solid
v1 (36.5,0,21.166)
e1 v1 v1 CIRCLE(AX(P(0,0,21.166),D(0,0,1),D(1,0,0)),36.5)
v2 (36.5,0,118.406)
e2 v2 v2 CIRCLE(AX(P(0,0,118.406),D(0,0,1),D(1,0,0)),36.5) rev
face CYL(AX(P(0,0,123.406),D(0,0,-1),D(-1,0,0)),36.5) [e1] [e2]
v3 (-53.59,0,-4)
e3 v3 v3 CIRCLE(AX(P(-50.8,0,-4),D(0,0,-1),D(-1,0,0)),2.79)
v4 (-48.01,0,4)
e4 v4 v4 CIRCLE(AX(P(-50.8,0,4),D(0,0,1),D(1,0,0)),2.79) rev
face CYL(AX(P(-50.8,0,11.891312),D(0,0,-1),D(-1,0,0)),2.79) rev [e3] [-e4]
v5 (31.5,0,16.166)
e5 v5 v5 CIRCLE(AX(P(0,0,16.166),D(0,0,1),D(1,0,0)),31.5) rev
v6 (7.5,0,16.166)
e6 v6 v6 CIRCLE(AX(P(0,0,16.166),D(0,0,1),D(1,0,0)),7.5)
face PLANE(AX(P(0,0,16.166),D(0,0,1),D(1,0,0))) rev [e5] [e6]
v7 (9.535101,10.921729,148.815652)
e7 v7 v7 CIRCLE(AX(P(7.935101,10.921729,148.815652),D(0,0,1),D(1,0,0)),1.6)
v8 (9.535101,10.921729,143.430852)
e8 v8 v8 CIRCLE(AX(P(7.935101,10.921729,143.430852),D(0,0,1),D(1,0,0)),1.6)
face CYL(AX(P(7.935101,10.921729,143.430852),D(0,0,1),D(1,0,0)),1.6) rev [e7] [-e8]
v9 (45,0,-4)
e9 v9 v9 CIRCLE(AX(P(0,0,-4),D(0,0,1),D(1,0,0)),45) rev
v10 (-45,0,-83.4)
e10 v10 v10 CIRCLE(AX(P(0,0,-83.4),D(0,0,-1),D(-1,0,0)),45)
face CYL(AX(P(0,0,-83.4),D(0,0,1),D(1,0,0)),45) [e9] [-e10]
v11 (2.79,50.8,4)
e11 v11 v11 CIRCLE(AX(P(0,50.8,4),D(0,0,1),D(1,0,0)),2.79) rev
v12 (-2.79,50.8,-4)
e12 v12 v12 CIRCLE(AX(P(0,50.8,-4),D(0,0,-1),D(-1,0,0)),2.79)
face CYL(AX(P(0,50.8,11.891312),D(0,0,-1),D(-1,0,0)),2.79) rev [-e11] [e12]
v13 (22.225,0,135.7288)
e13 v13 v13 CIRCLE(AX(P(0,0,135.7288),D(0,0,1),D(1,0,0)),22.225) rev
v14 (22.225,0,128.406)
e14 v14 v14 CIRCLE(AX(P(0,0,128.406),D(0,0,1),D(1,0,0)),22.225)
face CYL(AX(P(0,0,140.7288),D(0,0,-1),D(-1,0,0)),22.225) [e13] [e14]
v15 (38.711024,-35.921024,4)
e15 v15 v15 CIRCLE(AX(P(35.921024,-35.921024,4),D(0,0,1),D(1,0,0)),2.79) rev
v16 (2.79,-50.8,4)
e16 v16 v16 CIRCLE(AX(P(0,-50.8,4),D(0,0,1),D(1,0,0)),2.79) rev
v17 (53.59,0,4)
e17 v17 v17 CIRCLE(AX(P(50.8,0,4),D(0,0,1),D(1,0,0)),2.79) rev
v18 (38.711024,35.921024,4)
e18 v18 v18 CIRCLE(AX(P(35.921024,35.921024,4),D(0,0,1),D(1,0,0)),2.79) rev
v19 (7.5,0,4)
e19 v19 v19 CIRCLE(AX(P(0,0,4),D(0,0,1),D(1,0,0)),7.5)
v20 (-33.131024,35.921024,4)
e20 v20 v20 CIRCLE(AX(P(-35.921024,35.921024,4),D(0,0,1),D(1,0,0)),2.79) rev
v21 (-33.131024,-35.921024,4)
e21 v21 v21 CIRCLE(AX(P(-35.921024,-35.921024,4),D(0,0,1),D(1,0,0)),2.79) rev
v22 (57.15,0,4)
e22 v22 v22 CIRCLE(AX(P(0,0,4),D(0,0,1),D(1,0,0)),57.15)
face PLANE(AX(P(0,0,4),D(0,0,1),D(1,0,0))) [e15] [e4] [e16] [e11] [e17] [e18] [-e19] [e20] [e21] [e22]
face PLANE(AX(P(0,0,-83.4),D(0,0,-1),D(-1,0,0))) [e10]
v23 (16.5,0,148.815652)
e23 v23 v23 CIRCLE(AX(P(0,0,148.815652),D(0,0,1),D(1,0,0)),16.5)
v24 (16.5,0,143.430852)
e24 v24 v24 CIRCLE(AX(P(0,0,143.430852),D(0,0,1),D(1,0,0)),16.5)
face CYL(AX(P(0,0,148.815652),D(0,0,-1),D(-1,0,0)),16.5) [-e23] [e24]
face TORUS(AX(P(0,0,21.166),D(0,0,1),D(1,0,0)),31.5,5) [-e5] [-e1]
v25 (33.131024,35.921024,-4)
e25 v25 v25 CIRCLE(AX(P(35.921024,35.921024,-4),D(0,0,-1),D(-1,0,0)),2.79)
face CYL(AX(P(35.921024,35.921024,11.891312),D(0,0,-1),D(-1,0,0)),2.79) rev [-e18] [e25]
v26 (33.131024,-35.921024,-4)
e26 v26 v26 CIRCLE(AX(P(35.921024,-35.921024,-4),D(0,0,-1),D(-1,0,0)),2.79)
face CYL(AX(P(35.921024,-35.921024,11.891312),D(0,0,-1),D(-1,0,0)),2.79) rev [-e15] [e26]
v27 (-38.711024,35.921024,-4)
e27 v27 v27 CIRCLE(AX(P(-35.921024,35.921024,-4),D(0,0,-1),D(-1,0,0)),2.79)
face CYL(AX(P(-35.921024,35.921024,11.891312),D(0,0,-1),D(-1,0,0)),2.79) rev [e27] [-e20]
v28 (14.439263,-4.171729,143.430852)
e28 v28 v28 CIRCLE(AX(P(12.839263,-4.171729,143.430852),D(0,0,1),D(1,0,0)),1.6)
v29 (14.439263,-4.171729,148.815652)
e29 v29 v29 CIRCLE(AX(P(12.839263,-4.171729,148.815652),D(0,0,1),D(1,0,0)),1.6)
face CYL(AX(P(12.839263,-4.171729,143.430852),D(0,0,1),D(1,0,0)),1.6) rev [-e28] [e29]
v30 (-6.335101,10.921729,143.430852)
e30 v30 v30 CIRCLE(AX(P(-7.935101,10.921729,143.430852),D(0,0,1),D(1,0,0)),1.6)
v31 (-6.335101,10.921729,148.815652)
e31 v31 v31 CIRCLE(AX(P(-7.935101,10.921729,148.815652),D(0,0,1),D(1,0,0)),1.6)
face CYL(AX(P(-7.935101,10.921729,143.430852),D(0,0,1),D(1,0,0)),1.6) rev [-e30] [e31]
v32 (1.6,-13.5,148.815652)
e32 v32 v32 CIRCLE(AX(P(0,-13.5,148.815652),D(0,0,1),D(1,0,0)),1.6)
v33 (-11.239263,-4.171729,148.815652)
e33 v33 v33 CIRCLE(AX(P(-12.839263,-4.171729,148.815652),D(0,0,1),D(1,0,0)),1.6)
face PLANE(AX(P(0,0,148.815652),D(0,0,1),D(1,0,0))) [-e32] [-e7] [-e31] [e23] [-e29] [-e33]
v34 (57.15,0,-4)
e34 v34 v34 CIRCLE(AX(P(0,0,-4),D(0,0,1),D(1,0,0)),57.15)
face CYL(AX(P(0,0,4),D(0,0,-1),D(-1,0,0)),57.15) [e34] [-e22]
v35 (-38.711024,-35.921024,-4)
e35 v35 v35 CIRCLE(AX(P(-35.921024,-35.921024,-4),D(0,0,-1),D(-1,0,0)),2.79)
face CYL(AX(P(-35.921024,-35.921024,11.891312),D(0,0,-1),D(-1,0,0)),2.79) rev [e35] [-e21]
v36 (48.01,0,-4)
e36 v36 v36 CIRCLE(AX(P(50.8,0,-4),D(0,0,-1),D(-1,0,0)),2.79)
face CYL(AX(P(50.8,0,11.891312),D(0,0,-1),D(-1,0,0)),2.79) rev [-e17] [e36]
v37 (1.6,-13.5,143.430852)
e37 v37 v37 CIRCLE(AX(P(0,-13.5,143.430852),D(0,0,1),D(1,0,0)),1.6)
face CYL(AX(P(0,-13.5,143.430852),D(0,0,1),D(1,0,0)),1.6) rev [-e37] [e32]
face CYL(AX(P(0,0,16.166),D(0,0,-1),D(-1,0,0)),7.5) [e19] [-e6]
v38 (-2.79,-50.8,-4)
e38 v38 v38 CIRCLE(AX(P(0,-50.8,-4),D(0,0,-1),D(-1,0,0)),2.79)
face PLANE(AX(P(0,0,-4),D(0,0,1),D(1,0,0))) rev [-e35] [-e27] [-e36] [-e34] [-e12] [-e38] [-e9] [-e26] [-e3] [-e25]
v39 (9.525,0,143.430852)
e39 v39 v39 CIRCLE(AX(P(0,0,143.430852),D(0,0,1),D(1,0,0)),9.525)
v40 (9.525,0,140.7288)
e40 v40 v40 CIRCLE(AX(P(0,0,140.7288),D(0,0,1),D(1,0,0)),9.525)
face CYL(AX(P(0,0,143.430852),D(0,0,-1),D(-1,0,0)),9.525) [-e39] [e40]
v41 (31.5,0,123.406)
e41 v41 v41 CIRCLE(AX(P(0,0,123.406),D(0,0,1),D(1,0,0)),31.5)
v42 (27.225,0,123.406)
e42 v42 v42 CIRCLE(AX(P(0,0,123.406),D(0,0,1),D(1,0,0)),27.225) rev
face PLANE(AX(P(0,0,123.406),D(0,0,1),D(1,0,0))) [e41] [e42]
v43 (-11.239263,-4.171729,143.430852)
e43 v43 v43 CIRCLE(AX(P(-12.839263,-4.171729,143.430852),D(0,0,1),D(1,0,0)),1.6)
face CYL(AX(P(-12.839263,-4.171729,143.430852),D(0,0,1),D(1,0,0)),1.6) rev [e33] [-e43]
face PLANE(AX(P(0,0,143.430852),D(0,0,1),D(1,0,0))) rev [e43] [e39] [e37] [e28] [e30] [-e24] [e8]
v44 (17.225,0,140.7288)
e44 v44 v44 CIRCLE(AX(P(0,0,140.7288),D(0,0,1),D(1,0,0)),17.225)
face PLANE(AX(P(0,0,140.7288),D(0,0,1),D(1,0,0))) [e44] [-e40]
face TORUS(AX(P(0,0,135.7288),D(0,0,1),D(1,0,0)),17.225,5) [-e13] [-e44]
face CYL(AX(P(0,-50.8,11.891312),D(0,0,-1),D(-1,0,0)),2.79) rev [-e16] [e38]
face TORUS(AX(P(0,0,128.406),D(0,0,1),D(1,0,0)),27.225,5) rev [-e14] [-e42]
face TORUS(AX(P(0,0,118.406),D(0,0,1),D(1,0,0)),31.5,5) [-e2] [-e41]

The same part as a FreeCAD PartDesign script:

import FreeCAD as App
import Part
import Sketcher
from FreeCAD import Vector
Q = App.Units.Quantity


def edges_at(feature, points):
    """Names of the edges that pass closest to the given points."""
    edges = feature.Shape.Edges
    near = lambda p: min(range(len(edges)), key=lambda i: edges[i].distToShape(Part.Vertex(*p))[0])
    return sorted({f"Edge{near(p) + 1}" for p in points})

doc = App.newDocument("Part")
body = doc.addObject("PartDesign::Body", "Body")

sketch1 = doc.addObject("Sketcher::SketchObject", "Sketch")
body.addObject(sketch1)
sketch1.AttachmentSupport = (doc.XY_Plane, [""])
sketch1.MapMode = "FlatFace"
sketch1.addGeometry(Part.Circle(Vector(0, 0, 0), Vector(0, 0, 1), 57.15), False)
sketch1.addConstraint([
    Sketcher.Constraint("Coincident", 0, 3, -1, 1),
    Sketcher.Constraint("Diameter", 0, Q("114.3 mm")),
])
pad1 = doc.addObject("PartDesign::Pad", "Pad")
body.addObject(pad1)
pad1.Profile = sketch1
pad1.Length = 8
pad1.Midplane = True

sketch2 = doc.addObject("Sketcher::SketchObject", "Sketch001")
body.addObject(sketch2)
sketch2.AttachmentSupport = (doc.XY_Plane, [""])
sketch2.MapMode = "FlatFace"
sketch2.AttachmentOffset = App.Placement(Vector(0, 0, 4), App.Rotation())
sketch2.addGeometry(Part.Circle(Vector(0, 0, 0), Vector(0, 0, 1), 7.5), False)
sketch2.addConstraint([
    Sketcher.Constraint("Coincident", 0, 3, -1, 1),
    Sketcher.Constraint("Diameter", 0, Q("15 mm")),
])
pad2 = doc.addObject("PartDesign::Pad", "Pad001")
body.addObject(pad2)
pad2.Profile = sketch2
pad2.Length = 12.166

sketch3 = doc.addObject("Sketcher::SketchObject", "Sketch002")
body.addObject(sketch3)
sketch3.AttachmentSupport = (doc.XY_Plane, [""])
sketch3.MapMode = "FlatFace"
sketch3.AttachmentOffset = App.Placement(Vector(0, 0, 16.166), App.Rotation())
sketch3.addGeometry(Part.Circle(Vector(0, 0, 0), Vector(0, 0, 1), 36.5), False)
sketch3.addConstraint([
    Sketcher.Constraint("Coincident", 0, 3, -1, 1),
    Sketcher.Constraint("Diameter", 0, Q("73 mm")),
])
pad3 = doc.addObject("PartDesign::Pad", "Pad002")
body.addObject(pad3)
pad3.Profile = sketch3
pad3.Length = 107.24

sketch4 = doc.addObject("Sketcher::SketchObject", "Sketch003")
body.addObject(sketch4)
sketch4.AttachmentSupport = (doc.XY_Plane, [""])
sketch4.MapMode = "FlatFace"
sketch4.AttachmentOffset = App.Placement(Vector(0, 0, 123.406), App.Rotation())
sketch4.addGeometry(Part.Circle(Vector(0, 0, 0), Vector(0, 0, 1), 22.225), False)
sketch4.addConstraint([
    Sketcher.Constraint("Coincident", 0, 3, -1, 1),
    Sketcher.Constraint("Diameter", 0, Q("44.45 mm")),
])
pad4 = doc.addObject("PartDesign::Pad", "Pad003")
body.addObject(pad4)
pad4.Profile = sketch4
pad4.Length = 17.3228

sketch5 = doc.addObject("Sketcher::SketchObject", "Sketch004")
body.addObject(sketch5)
sketch5.AttachmentSupport = (doc.XY_Plane, [""])
sketch5.MapMode = "FlatFace"
sketch5.AttachmentOffset = App.Placement(Vector(0, 0, 140.7288), App.Rotation())
sketch5.addGeometry(Part.Circle(Vector(0, 0, 0), Vector(0, 0, 1), 9.525), False)
sketch5.addConstraint([
    Sketcher.Constraint("Coincident", 0, 3, -1, 1),
    Sketcher.Constraint("Diameter", 0, Q("19.05 mm")),
])
pad5 = doc.addObject("PartDesign::Pad", "Pad004")
body.addObject(pad5)
pad5.Profile = sketch5
pad5.Length = 2.702052

sketch6 = doc.addObject("Sketcher::SketchObject", "Sketch005")
body.addObject(sketch6)
sketch6.AttachmentSupport = (doc.XY_Plane, [""])
sketch6.MapMode = "FlatFace"
sketch6.AttachmentOffset = App.Placement(Vector(0, 0, 143.430852), App.Rotation())
sketch6.addGeometry(Part.Circle(Vector(0, 0, 0), Vector(0, 0, 1), 16.5), False)
sketch6.addConstraint([
    Sketcher.Constraint("Coincident", 0, 3, -1, 1),
    Sketcher.Constraint("Diameter", 0, Q("33 mm")),
])
pad6 = doc.addObject("PartDesign::Pad", "Pad005")
body.addObject(pad6)
pad6.Profile = sketch6
pad6.Length = 5.3848

sketch7 = doc.addObject("Sketcher::SketchObject", "Sketch006")
body.addObject(sketch7)
sketch7.AttachmentSupport = (doc.XY_Plane, [""])
sketch7.MapMode = "FlatFace"
sketch7.AttachmentOffset = App.Placement(Vector(0, 0, 148.815652), App.Rotation())
sketch7.addGeometry([
    Part.Circle(Vector(-7.935101, 10.921729, 0), Vector(0, 0, 1), 1.6),
    Part.Circle(Vector(7.935101, 10.921729, 0), Vector(0, 0, 1), 1.6),
    Part.Circle(Vector(12.839263, -4.171729, 0), Vector(0, 0, 1), 1.6),
    Part.Circle(Vector(0, -13.5, 0), Vector(0, 0, 1), 1.6),
    Part.Circle(Vector(-12.839263, -4.171729, 0), Vector(0, 0, 1), 1.6),
], False)
sketch7.addConstraint([
    Sketcher.Constraint("Equal", 0, 1),
    Sketcher.Constraint("Equal", 1, 2),
    Sketcher.Constraint("Equal", 2, 3),
    Sketcher.Constraint("Equal", 3, 4),
    Sketcher.Constraint("Symmetric", 0, 3, 1, 3, -2),
    Sketcher.Constraint("Symmetric", 2, 3, 4, 3, -2),
    Sketcher.Constraint("PointOnObject", 3, 3, -2),
    Sketcher.Constraint("Diameter", 0, Q("3.2 mm")),
    Sketcher.Constraint("DistanceY", 3, 3, -1, 1, Q("13.5 mm")),
    Sketcher.Constraint("DistanceX", 0, 3, -1, 1, Q("7.935101 mm")),
    Sketcher.Constraint("DistanceY", -1, 1, 0, 3, Q("10.921729 mm")),
    Sketcher.Constraint("DistanceY", 2, 3, -1, 1, Q("4.171729 mm")),
    Sketcher.Constraint("DistanceX", -1, 1, 2, 3, Q("12.839263 mm")),
])
pocket1 = doc.addObject("PartDesign::Pocket", "Pocket")
body.addObject(pocket1)
pocket1.Profile = sketch7
pocket1.Length = 5.3848

sketch8 = doc.addObject("Sketcher::SketchObject", "Sketch007")
body.addObject(sketch8)
sketch8.AttachmentSupport = (doc.XY_Plane, [""])
sketch8.MapMode = "FlatFace"
sketch8.AttachmentOffset = App.Placement(Vector(0, 0, -4), App.Rotation())
sketch8.addGeometry([
    Part.Circle(Vector(0, 50.8, 0), Vector(0, 0, 1), 2.79),
    Part.Circle(Vector(-35.921024, 35.921024, 0), Vector(0, 0, 1), 2.79),
    Part.Circle(Vector(-50.8, 0, 0), Vector(0, 0, 1), 2.79),
    Part.Circle(Vector(-35.921024, -35.921024, 0), Vector(0, 0, 1), 2.79),
    Part.Circle(Vector(0, -50.8, 0), Vector(0, 0, 1), 2.79),
    Part.Circle(Vector(35.921024, -35.921024, 0), Vector(0, 0, 1), 2.79),
    Part.Circle(Vector(50.8, 0, 0), Vector(0, 0, 1), 2.79),
    Part.Circle(Vector(35.921024, 35.921024, 0), Vector(0, 0, 1), 2.79),
], False)
sketch8.addConstraint([
    Sketcher.Constraint("Equal", 0, 1),
    Sketcher.Constraint("Equal", 1, 2),
    Sketcher.Constraint("Equal", 2, 3),
    Sketcher.Constraint("Equal", 3, 4),
    Sketcher.Constraint("Equal", 4, 5),
    Sketcher.Constraint("Equal", 5, 6),
    Sketcher.Constraint("Equal", 6, 7),
    Sketcher.Constraint("Symmetric", 0, 3, 4, 3, -1, 1),
    Sketcher.Constraint("Symmetric", 1, 3, 5, 3, -1, 1),
    Sketcher.Constraint("Symmetric", 2, 3, 6, 3, -1, 1),
    Sketcher.Constraint("Symmetric", 3, 3, 7, 3, -1, 1),
    Sketcher.Constraint("Symmetric", 3, 3, 5, 3, -2),
    Sketcher.Constraint("PointOnObject", 0, 3, -2),
    Sketcher.Constraint("PointOnObject", 2, 3, -1),
    Sketcher.Constraint("Diameter", 0, Q("5.58 mm")),
    Sketcher.Constraint("DistanceY", -1, 1, 0, 3, Q("50.8 mm")),
    Sketcher.Constraint("DistanceX", 2, 3, -1, 1, Q("50.8 mm")),
    Sketcher.Constraint("DistanceY", 3, 3, 1, 3, Q("71.842049 mm")),
    Sketcher.Constraint("DistanceX", 3, 3, 5, 3, Q("71.842049 mm")),
])
pocket2 = doc.addObject("PartDesign::Pocket", "Pocket001")
body.addObject(pocket2)
pocket2.Profile = sketch8
pocket2.Length = 8
pocket2.Reversed = True

sketch9 = doc.addObject("Sketcher::SketchObject", "Sketch008")
body.addObject(sketch9)
sketch9.AttachmentSupport = (doc.XY_Plane, [""])
sketch9.MapMode = "FlatFace"
sketch9.AttachmentOffset = App.Placement(Vector(0, 0, -4), App.Rotation())
sketch9.addGeometry(Part.Circle(Vector(0, 0, 0), Vector(0, 0, 1), 45), False)
sketch9.addConstraint([
    Sketcher.Constraint("Coincident", 0, 3, -1, 1),
    Sketcher.Constraint("Diameter", 0, Q("90 mm")),
])
pad7 = doc.addObject("PartDesign::Pad", "Pad006")
body.addObject(pad7)
pad7.Profile = sketch9
pad7.Length = 79.4
pad7.Reversed = True
doc.recompute()

fillet = doc.addObject("PartDesign::Fillet", "Fillet")
body.addObject(fillet)
fillet.Base = (pad7, edges_at(pad7, [
    (-36.5, 0, 123.406),
    (-22.225, 0, 123.406),
    (-22.225, 0, 140.729),
    (-36.5, 0, 16.166),
]))
fillet.Radius = 5

doc.recompute()
